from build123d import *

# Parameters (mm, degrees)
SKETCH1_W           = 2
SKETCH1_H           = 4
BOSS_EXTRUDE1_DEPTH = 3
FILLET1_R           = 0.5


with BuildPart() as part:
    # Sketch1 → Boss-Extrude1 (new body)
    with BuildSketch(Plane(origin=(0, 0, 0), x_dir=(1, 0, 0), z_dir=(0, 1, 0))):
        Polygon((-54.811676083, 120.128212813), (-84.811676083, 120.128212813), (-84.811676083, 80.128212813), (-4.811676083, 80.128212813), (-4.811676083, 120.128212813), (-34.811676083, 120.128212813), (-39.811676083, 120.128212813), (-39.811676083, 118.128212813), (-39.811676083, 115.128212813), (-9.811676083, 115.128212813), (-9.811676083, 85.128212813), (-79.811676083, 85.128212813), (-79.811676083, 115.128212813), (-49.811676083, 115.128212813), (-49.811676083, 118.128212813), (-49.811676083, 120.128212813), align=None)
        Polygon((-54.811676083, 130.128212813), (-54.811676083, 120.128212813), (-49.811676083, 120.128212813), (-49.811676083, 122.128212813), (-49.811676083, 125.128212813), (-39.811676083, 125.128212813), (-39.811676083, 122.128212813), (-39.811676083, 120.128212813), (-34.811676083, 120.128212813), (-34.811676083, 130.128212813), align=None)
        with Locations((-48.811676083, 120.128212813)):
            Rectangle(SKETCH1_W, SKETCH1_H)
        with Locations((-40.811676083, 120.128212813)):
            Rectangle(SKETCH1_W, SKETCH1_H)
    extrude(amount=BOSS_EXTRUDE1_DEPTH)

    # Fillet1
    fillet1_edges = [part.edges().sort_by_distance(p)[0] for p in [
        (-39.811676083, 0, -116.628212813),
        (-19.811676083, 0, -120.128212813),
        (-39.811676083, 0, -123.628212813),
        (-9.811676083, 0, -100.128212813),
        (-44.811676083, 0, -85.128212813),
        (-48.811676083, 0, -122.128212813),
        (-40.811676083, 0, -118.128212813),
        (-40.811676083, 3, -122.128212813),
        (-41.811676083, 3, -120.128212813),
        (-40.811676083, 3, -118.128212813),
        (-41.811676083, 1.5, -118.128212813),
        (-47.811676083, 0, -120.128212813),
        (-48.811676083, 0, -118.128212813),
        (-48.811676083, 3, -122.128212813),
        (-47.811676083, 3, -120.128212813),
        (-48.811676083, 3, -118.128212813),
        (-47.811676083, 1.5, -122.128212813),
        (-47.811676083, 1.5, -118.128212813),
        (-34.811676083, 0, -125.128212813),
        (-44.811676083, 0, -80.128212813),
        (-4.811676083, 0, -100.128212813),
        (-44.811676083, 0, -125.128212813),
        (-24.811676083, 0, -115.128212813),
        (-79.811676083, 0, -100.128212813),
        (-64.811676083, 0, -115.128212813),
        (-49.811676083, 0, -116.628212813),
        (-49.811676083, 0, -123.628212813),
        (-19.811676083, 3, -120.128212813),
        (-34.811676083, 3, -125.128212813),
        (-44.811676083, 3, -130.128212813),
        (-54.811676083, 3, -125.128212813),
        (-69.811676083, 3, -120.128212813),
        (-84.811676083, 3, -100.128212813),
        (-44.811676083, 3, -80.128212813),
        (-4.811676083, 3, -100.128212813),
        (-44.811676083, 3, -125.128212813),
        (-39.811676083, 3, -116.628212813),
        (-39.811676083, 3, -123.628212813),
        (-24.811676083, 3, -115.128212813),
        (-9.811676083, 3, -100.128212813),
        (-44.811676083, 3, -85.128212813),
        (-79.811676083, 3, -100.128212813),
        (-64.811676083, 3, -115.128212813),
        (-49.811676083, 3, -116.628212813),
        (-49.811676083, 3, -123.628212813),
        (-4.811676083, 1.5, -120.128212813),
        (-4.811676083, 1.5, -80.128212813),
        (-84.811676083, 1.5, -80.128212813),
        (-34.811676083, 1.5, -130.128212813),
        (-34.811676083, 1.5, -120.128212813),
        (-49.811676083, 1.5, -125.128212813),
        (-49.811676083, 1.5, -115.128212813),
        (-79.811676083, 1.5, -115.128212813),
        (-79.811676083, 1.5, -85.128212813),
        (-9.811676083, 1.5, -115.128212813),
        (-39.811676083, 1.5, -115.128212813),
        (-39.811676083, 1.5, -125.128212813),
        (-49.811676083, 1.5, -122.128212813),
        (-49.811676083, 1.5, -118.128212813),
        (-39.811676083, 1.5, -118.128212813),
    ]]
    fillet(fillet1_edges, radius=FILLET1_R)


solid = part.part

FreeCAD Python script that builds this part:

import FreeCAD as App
import Part
import Sketcher

V = App.Vector
Q = App.Units.Quantity


def edges_at(feature, points):
    """Names of the edges that pass closest to the given points."""
    edges = feature.Shape.Edges
    near = lambda p: min(range(len(edges)), key=lambda i: edges[i].distToShape(Part.Vertex(*p))[0])
    return sorted({f"Edge{near(p) + 1}" for p in points})


def add_polygon(sketch, points):
    """Adds a closed chain of lines whose ends are joined by coincident constraints."""
    first, n = sketch.GeometryCount, len(points)
    for a, b in zip(points, points[1:] + points[:1]):
        sketch.addGeometry(Part.LineSegment(App.Vector(*a, 0), App.Vector(*b, 0)), False)
    for i in range(n):
        sketch.addConstraint(Sketcher.Constraint("Coincident", first + i, 2, first + (i + 1) % n, 1))

doc = App.newDocument("Part")
params = doc.addObject("Spreadsheet::Sheet", "Params")
for row, (alias, value) in enumerate([
    ("sketch1_width", "80 mm"),
    ("sketch1_width2", "30 mm"),
    ("sketch1_width3", "70 mm"),
    ("sketch1_width4", "2 mm"),
    ("sketch1_height", "40 mm"),
    ("pad1_length", "3 mm"),
    ("fillet_radius", "0.5 mm"),
], start=1):
    params.set(f"A{row}", alias)
    params.set(f"B{row}", "=" + value)
    params.setAlias(f"B{row}", alias)

body = doc.addObject("PartDesign::Body", "Body")

# Sketch on XZ plane
sketch1 = body.newObject("Sketcher::SketchObject", "Sketch")
sketch1.AttachmentSupport = (doc.getObject("XZ_Plane"), [""])
sketch1.MapMode = "FlatFace"
add_polygon(sketch1, [(-84.8, -120.1), (-84.8, -80.1), (-4.8, -80.1), (-4.8, -120.1), (-34.8, -120.1), (-34.8, -130.1), (-54.8, -130.1), (-54.8, -120.1)])  # lines 0-7
add_polygon(sketch1, [(-39.8, -115.1), (-9.8, -115.1), (-9.8, -85.1), (-79.8, -85.1), (-79.8, -115.1), (-49.8, -115.1), (-49.8, -118.1), (-47.8, -118.1), (-47.8, -122.1), (-49.8, -122.1), (-49.8, -125.1), (-39.8, -125.1), (-39.8, -122.1), (-41.8, -122.1), (-41.8, -118.1), (-39.8, -118.1)])  # lines 8-23
sketch1.addConstraint(Sketcher.Constraint("Vertical", 0))
sketch1.addConstraint(Sketcher.Constraint("Horizontal", 1))
sketch1.addConstraint(Sketcher.Constraint("Vertical", 2))
sketch1.addConstraint(Sketcher.Constraint("Horizontal", 3))
sketch1.addConstraint(Sketcher.Constraint("Vertical", 4))
sketch1.addConstraint(Sketcher.Constraint("Horizontal", 5))
sketch1.addConstraint(Sketcher.Constraint("Vertical", 6))
sketch1.addConstraint(Sketcher.Constraint("Horizontal", 7))
sketch1.addConstraint(Sketcher.Constraint("Horizontal", 8))
sketch1.addConstraint(Sketcher.Constraint("Vertical", 9))
sketch1.addConstraint(Sketcher.Constraint("Horizontal", 10))
sketch1.addConstraint(Sketcher.Constraint("Vertical", 11))
sketch1.addConstraint(Sketcher.Constraint("Horizontal", 12))
sketch1.addConstraint(Sketcher.Constraint("Vertical", 13))
sketch1.addConstraint(Sketcher.Constraint("Horizontal", 14))
sketch1.addConstraint(Sketcher.Constraint("Vertical", 15))
sketch1.addConstraint(Sketcher.Constraint("Horizontal", 16))
sketch1.addConstraint(Sketcher.Constraint("Vertical", 17))
sketch1.addConstraint(Sketcher.Constraint("Horizontal", 18))
sketch1.addConstraint(Sketcher.Constraint("Vertical", 19))
sketch1.addConstraint(Sketcher.Constraint("Horizontal", 20))
sketch1.addConstraint(Sketcher.Constraint("Vertical", 21))
sketch1.addConstraint(Sketcher.Constraint("Horizontal", 22))
sketch1.addConstraint(Sketcher.Constraint("Vertical", 23))
sketch1.addConstraint(Sketcher.Constraint("Horizontal", 3, 2, 6, 2))
sketch1.addConstraint(Sketcher.Constraint("Horizontal", 8, 2, 11, 2))
sketch1.addConstraint(Sketcher.Constraint("Horizontal", 16, 2, 19, 2))
sketch1.addConstraint(Sketcher.Constraint("Horizontal", 14, 2, 21, 2))
sketch1.addConstraint(Sketcher.Constraint("Vertical", 13, 2, 16, 2))
sketch1.addConstraint(Sketcher.Constraint("Vertical", 19, 2, 22, 2))
sketch1.addConstraint(Sketcher.Constraint("Equal", 3, 7))
sketch1.addConstraint(Sketcher.Constraint("Equal", 7, 8))
sketch1.addConstraint(Sketcher.Constraint("Equal", 8, 12))
sketch1.addConstraint(Sketcher.Constraint("Equal", 16, 20))
sketch1.addConstraint(Sketcher.Constraint("Equal", 18, 4))
sketch1.addConstraint(Sketcher.Constraint("Equal", 12, 9))
sketch1.addConstraint(Sketcher.Constraint("Equal", 13, 17))
sketch1.addConstraint(Sketcher.Constraint("DistanceX", 1, 1, 1, 2, Q("80 mm")))
sketch1.addConstraint(Sketcher.Constraint("DistanceX", 3, 2, 3, 1, Q("30 mm")))
sketch1.addConstraint(Sketcher.Constraint("DistanceX", 10, 2, 10, 1, Q("70 mm")))
sketch1.addConstraint(Sketcher.Constraint("DistanceX", 14, 1, 14, 2, Q("2 mm")))
sketch1.addConstraint(Sketcher.Constraint("DistanceY", 0, 1, 0, 2, Q("40 mm")))
sketch1.addConstraint(Sketcher.Constraint("DistanceY", 13, 2, 13, 1, Q("3 mm")))
sketch1.addConstraint(Sketcher.Constraint("DistanceY", 15, 2, 15, 1, Q("4 mm")))
sketch1.addConstraint(Sketcher.Constraint("DistanceX", 8, 2, 2, 2, Q("5 mm")))
sketch1.addConstraint(Sketcher.Constraint("DistanceY", 2, 2, 8, 2, Q("5 mm")))
sketch1.addConstraint(Sketcher.Constraint("DistanceX", 0, 2, -1, 1, Q("84.811676 mm")))
sketch1.addConstraint(Sketcher.Constraint("DistanceY", 0, 2, -1, 1, Q("80.128213 mm")))
sketch1.setExpression("Constraints[61]", "Params.sketch1_width")
sketch1.setExpression("Constraints[62]", "Params.sketch1_width2")
sketch1.setExpression("Constraints[63]", "Params.sketch1_width3")
sketch1.setExpression("Constraints[64]", "Params.sketch1_width4")
sketch1.setExpression("Constraints[65]", "Params.sketch1_height")
pad1 = body.newObject("PartDesign::Pad", "Pad")
pad1.Profile = sketch1
pad1.setExpression("Length", "Params.pad1_length")
pad1.Reversed = True
doc.recompute()

fillet = body.newObject("PartDesign::Fillet", "Fillet")
fillet.Base = (pad1, edges_at(pad1, [
    (-39.812, 0, -116.628),
    (-19.812, 0, -120.128),
    (-39.812, 0, -123.628),
    (-9.812, 0, -100.128),
    (-44.812, 0, -85.128),
    (-48.812, 0, -122.128),
    (-40.812, 0, -118.128),
    (-40.812, 3, -122.128),
    (-41.812, 3, -120.128),
    (-40.812, 3, -118.128),
    (-41.812, 1.5, -118.128),
    (-47.812, 0, -120.128),
    (-48.812, 0, -118.128),
    (-48.812, 3, -122.128),
    (-47.812, 3, -120.128),
    (-48.812, 3, -118.128),
    (-47.812, 1.5, -122.128),
    (-47.812, 1.5, -118.128),
    (-34.812, 0, -125.128),
    (-44.812, 0, -80.128),
    (-4.812, 0, -100.128),
    (-44.812, 0, -125.128),
    (-24.812, 0, -115.128),
    (-79.812, 0, -100.128),
    (-64.812, 0, -115.128),
    (-49.812, 0, -116.628),
    (-49.812, 0, -123.628),
    (-19.812, 3, -120.128),
    (-34.812, 3, -125.128),
    (-44.812, 3, -130.128),
    (-54.812, 3, -125.128),
    (-69.812, 3, -120.128),
    (-84.812, 3, -100.128),
    (-44.812, 3, -80.128),
    (-4.812, 3, -100.128),
    (-44.812, 3, -125.128),
    (-39.812, 3, -116.628),
    (-39.812, 3, -123.628),
    (-24.812, 3, -115.128),
    (-9.812, 3, -100.128),
    (-44.812, 3, -85.128),
    (-79.812, 3, -100.128),
    (-64.812, 3, -115.128),
    (-49.812, 3, -116.628),
    (-49.812, 3, -123.628),
    (-4.812, 1.5, -120.128),
    (-4.812, 1.5, -80.128),
    (-84.812, 1.5, -80.128),
    (-34.812, 1.5, -130.128),
    (-34.812, 1.5, -120.128),
    (-49.812, 1.5, -125.128),
    (-49.812, 1.5, -115.128),
    (-79.812, 1.5, -115.128),
    (-79.812, 1.5, -85.128),
    (-9.812, 1.5, -115.128),
    (-39.812, 1.5, -115.128),
    (-39.812, 1.5, -125.128),
    (-49.812, 1.5, -122.128),
    (-49.812, 1.5, -118.128),
    (-39.812, 1.5, -118.128),
]))
fillet.setExpression("Radius", "Params.fillet_radius")

doc.recompute()
